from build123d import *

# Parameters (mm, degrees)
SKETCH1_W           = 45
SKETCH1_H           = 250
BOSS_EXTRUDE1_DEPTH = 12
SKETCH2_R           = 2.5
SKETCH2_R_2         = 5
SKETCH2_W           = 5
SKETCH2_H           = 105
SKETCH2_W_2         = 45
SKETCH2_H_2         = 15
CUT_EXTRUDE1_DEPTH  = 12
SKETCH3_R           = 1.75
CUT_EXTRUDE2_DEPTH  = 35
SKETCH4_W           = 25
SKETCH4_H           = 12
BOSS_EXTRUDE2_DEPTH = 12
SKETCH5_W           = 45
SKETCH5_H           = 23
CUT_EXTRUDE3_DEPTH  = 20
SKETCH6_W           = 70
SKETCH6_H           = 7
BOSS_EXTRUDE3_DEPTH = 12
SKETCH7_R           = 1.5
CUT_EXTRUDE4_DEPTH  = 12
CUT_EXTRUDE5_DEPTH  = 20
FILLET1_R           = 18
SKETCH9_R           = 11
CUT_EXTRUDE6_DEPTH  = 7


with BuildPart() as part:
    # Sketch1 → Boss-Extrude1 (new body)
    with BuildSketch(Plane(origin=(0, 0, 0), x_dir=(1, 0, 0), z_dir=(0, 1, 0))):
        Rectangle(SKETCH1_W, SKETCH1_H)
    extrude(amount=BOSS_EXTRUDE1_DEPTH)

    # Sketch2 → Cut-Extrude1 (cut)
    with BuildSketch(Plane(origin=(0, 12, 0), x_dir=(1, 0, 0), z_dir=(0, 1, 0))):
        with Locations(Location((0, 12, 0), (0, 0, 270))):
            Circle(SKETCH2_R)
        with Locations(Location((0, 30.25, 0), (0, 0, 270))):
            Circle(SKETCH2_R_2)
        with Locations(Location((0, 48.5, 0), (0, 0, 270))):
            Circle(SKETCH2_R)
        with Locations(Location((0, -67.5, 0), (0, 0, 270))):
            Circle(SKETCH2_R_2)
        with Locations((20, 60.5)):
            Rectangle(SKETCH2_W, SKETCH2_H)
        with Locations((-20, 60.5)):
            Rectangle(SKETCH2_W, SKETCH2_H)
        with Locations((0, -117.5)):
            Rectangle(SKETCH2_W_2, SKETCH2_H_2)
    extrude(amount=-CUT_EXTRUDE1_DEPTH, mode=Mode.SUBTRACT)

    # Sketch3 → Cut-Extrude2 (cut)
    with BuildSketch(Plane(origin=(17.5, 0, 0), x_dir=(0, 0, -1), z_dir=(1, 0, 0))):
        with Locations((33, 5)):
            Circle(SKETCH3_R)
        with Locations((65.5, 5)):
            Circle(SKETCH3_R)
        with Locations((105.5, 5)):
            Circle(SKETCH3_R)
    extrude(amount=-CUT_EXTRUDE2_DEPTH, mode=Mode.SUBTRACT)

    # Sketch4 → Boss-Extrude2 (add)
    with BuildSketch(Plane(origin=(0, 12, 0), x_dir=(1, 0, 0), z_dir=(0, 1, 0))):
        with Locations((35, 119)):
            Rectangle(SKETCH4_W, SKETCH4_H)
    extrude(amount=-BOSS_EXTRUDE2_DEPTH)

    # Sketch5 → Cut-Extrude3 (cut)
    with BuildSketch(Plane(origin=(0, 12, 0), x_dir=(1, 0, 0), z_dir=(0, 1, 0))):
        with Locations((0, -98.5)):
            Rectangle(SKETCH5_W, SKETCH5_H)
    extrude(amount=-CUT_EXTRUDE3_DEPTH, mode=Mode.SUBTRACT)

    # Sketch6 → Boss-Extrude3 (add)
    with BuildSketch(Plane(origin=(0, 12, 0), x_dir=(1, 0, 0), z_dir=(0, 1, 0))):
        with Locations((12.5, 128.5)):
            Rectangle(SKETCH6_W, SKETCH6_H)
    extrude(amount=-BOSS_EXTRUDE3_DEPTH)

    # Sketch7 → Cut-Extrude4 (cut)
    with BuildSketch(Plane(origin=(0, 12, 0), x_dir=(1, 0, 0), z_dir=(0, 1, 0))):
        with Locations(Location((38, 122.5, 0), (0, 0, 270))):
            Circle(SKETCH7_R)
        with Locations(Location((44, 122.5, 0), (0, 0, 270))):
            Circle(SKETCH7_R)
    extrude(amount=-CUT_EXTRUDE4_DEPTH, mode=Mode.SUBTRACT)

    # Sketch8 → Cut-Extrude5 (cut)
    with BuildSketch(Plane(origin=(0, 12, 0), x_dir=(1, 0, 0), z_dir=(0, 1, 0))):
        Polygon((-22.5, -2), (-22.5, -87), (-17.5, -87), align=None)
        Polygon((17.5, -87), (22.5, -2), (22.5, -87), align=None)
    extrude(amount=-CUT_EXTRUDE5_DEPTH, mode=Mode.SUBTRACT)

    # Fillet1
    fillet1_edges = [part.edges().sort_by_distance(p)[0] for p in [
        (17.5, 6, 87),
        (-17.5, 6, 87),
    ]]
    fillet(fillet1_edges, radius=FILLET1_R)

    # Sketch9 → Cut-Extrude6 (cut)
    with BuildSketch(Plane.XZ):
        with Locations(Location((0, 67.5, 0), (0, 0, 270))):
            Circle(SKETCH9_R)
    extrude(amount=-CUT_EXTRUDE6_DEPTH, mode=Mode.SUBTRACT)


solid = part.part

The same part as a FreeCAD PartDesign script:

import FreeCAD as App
import Part
import Sketcher
from FreeCAD import Vector


def edges_at(feature, points):
    """Names of the edges that pass closest to the given points."""
    edges = feature.Shape.Edges
    near = lambda p: min(range(len(edges)), key=lambda i: edges[i].distToShape(Part.Vertex(*p))[0])
    return sorted({f"Edge{near(p) + 1}" for p in points})

doc = App.newDocument("Part")
body = doc.addObject("PartDesign::Body", "Body")

# Sketch on XZ plane
sketch1 = body.newObject("Sketcher::SketchObject", "Sketch")
sketch1.AttachmentSupport = (doc.getObject("XZ_Plane"), [""])
sketch1.MapMode = "FlatFace"
sketch1.addGeometry([
    Part.LineSegment(Vector(-22, -125, 0), Vector(-22, 125, 0)),
    Part.LineSegment(Vector(-22, 125, 0), Vector(22, 125, 0)),
    Part.LineSegment(Vector(22, 125, 0), Vector(22, -125, 0)),
    Part.LineSegment(Vector(22, -125, 0), Vector(-22, -125, 0)),
], False)
sketch1.addConstraint([
    Sketcher.Constraint("Coincident", 0, 2, 1, 1),
    Sketcher.Constraint("Coincident", 1, 2, 2, 1),
    Sketcher.Constraint("Coincident", 2, 2, 3, 1),
    Sketcher.Constraint("Coincident", 3, 2, 0, 1),
    Sketcher.Constraint("Vertical", 0),
    Sketcher.Constraint("Horizontal", 1),
    Sketcher.Constraint("Vertical", 2),
    Sketcher.Constraint("Horizontal", 3),
    Sketcher.Constraint("Symmetric", 0, 2, 2, 2, -1, 1),
    Sketcher.Constraint("DistanceX", 1, 1, 1, 2, 45.0),
    Sketcher.Constraint("DistanceY", 0, 1, 0, 2, 250.0),
])
pad1 = body.newObject("PartDesign::Pad", "Pad")
pad1.Profile = sketch1
pad1.Length = 12
pad1.Reversed = True

# Sketch on XZ plane
sketch2 = body.newObject("Sketcher::SketchObject", "Sketch001")
sketch2.AttachmentSupport = (doc.getObject("XZ_Plane"), [""])
sketch2.MapMode = "FlatFace"
sketch2.AttachmentOffset = App.Placement(Vector(0, 0, -12), App.Rotation())
sketch2.addGeometry([
    Part.Circle(Vector(0, -12, 0), Vector(0, 0, 1), 2.5),  # 0
    Part.Circle(Vector(0, -30.2, 0), Vector(0, 0, 1), 5),  # 1
    Part.Circle(Vector(0, -48.5, 0), Vector(0, 0, 1), 2.5),  # 2
    Part.Circle(Vector(0, 67.5, 0), Vector(0, 0, 1), 5),  # 3
    Part.LineSegment(Vector(17.5, -113, 0), Vector(17.5, -8, 0)),  # 4
    Part.LineSegment(Vector(17.5, -8, 0), Vector(22.5, -8, 0)),  # 5
    Part.LineSegment(Vector(22.5, -8, 0), Vector(22.5, -113, 0)),  # 6
    Part.LineSegment(Vector(22.5, -113, 0), Vector(17.5, -113, 0)),  # 7
    Part.LineSegment(Vector(-22.5, -113, 0), Vector(-22.5, -8, 0)),  # 8
    Part.LineSegment(Vector(-22.5, -8, 0), Vector(-17.5, -8, 0)),  # 9
    Part.LineSegment(Vector(-17.5, -8, 0), Vector(-17.5, -113, 0)),  # 10
    Part.LineSegment(Vector(-17.5, -113, 0), Vector(-22.5, -113, 0)),  # 11
    Part.LineSegment(Vector(-22.5, 110, 0), Vector(-22.5, 125, 0)),  # 12
    Part.LineSegment(Vector(-22.5, 125, 0), Vector(22.5, 125, 0)),  # 13
    Part.LineSegment(Vector(22.5, 125, 0), Vector(22.5, 110, 0)),  # 14
    Part.LineSegment(Vector(22.5, 110, 0), Vector(-22.5, 110, 0)),  # 15
], False)
sketch2.addConstraint([
    Sketcher.Constraint("Coincident", 4, 2, 5, 1),
    Sketcher.Constraint("Coincident", 5, 2, 6, 1),
    Sketcher.Constraint("Coincident", 6, 2, 7, 1),
    Sketcher.Constraint("Coincident", 7, 2, 4, 1),
    Sketcher.Constraint("Coincident", 8, 2, 9, 1),
    Sketcher.Constraint("Coincident", 9, 2, 10, 1),
    Sketcher.Constraint("Coincident", 10, 2, 11, 1),
    Sketcher.Constraint("Coincident", 11, 2, 8, 1),
    Sketcher.Constraint("Coincident", 12, 2, 13, 1),
    Sketcher.Constraint("Coincident", 13, 2, 14, 1),
    Sketcher.Constraint("Coincident", 14, 2, 15, 1),
    Sketcher.Constraint("Coincident", 15, 2, 12, 1),
    Sketcher.Constraint("Vertical", 4),
    Sketcher.Constraint("Horizontal", 5),
    Sketcher.Constraint("Vertical", 6),
    Sketcher.Constraint("Horizontal", 7),
    Sketcher.Constraint("Vertical", 8),
    Sketcher.Constraint("Horizontal", 9),
    Sketcher.Constraint("Vertical", 10),
    Sketcher.Constraint("Horizontal", 11),
    Sketcher.Constraint("Vertical", 12),
    Sketcher.Constraint("Horizontal", 13),
    Sketcher.Constraint("Vertical", 14),
    Sketcher.Constraint("Horizontal", 15),
    Sketcher.Constraint("Equal", 0, 2),
    Sketcher.Constraint("Equal", 1, 3),
    Sketcher.Constraint("Symmetric", 5, 2, 8, 2, -2),
    Sketcher.Constraint("Symmetric", 7, 2, 10, 2, -2),
    Sketcher.Constraint("PointOnObject", 0, 3, -2),
    Sketcher.Constraint("PointOnObject", 1, 3, -2),
    Sketcher.Constraint("PointOnObject", 2, 3, -2),
    Sketcher.Constraint("PointOnObject", 3, 3, -2),
    Sketcher.Constraint("Vertical", 11, 2, 12, 2),
    Sketcher.Constraint("Vertical", 6, 2, 13, 2),
    Sketcher.Constraint("Diameter", 0, 5.0),
    Sketcher.Constraint("Diameter", 1, 10.0),
    Sketcher.Constraint("DistanceX", 5, 1, 5, 2, 5.0),
    Sketcher.Constraint("DistanceX", 13, 1, 13, 2, 45.0),
    Sketcher.Constraint("DistanceY", 4, 1, 4, 2, 105.0),
    Sketcher.Constraint("DistanceY", 12, 1, 12, 2, 15.0),
    Sketcher.Constraint("DistanceY", 0, 3, -1, 1, 12.0),
    Sketcher.Constraint("DistanceY", 4, 2, -1, 1, 8.0),
    Sketcher.Constraint("DistanceY", -1, 1, 12, 2, 125.0),
    Sketcher.Constraint("DistanceY", 2, 3, 3, 3, 116.0),
    Sketcher.Constraint("DistanceY", 2, 3, -1, 1, 48.5),
    Sketcher.Constraint("DistanceY", 1, 3, -1, 1, 30.25),
])
pocket1 = body.newObject("PartDesign::Pocket", "Pocket")
pocket1.Profile = sketch2
pocket1.Length = 12
pocket1.Reversed = True

# Sketch on YZ plane
sketch3 = body.newObject("Sketcher::SketchObject", "Sketch002")
sketch3.AttachmentSupport = (doc.getObject("YZ_Plane"), [""])
sketch3.MapMode = "FlatFace"
sketch3.AttachmentOffset = App.Placement(Vector(0, 0, 17.5), App.Rotation())
sketch3.addGeometry([
    Part.Circle(Vector(5, -33, 0), Vector(0, 0, 1), 1.8),
    Part.Circle(Vector(5, -65.5, 0), Vector(0, 0, 1), 1.8),
    Part.Circle(Vector(5, -105.5, 0), Vector(0, 0, 1), 1.8),
], False)
sketch3.addConstraint([
    Sketcher.Constraint("Equal", 0, 1),
    Sketcher.Constraint("Equal", 1, 2),
    Sketcher.Constraint("Vertical", 0, 3, 1, 3),
    Sketcher.Constraint("Vertical", 1, 3, 2, 3),
    Sketcher.Constraint("Diameter", 0, 3.5),
    Sketcher.Constraint("DistanceX", -1, 1, 0, 3, 5.0),
    Sketcher.Constraint("DistanceY", 0, 3, -1, 1, 33.0),
    Sketcher.Constraint("DistanceY", 2, 3, 1, 3, 40.0),
    Sketcher.Constraint("DistanceY", 1, 3, -1, 1, 65.5),
])
pocket2 = body.newObject("PartDesign::Pocket", "Pocket001")
pocket2.Profile = sketch3
pocket2.Length = 35

# Sketch on XZ plane
sketch4 = body.newObject("Sketcher::SketchObject", "Sketch003")
sketch4.AttachmentSupport = (doc.getObject("XZ_Plane"), [""])
sketch4.MapMode = "FlatFace"
sketch4.AttachmentOffset = App.Placement(Vector(0, 0, -12), App.Rotation())
sketch4.addGeometry([
    Part.LineSegment(Vector(22, -125, 0), Vector(22, -113, 0)),
    Part.LineSegment(Vector(22, -113, 0), Vector(48, -113, 0)),
    Part.LineSegment(Vector(48, -113, 0), Vector(48, -125, 0)),
    Part.LineSegment(Vector(48, -125, 0), Vector(22, -125, 0)),
], False)
sketch4.addConstraint([
    Sketcher.Constraint("Coincident", 0, 2, 1, 1),
    Sketcher.Constraint("Coincident", 1, 2, 2, 1),
    Sketcher.Constraint("Coincident", 2, 2, 3, 1),
    Sketcher.Constraint("Coincident", 3, 2, 0, 1),
    Sketcher.Constraint("Vertical", 0),
    Sketcher.Constraint("Horizontal", 1),
    Sketcher.Constraint("Vertical", 2),
    Sketcher.Constraint("Horizontal", 3),
    Sketcher.Constraint("DistanceX", 1, 1, 1, 2, 25.0),
    Sketcher.Constraint("DistanceY", 0, 1, 0, 2, 12.0),
    Sketcher.Constraint("DistanceY", 0, 2, -1, 1, 113.0),
    Sketcher.Constraint("DistanceX", -1, 1, 0, 2, 22.5),
])
pad2 = body.newObject("PartDesign::Pad", "Pad001")
pad2.Profile = sketch4
pad2.Length = 12

# Sketch on XZ plane
sketch5 = body.newObject("Sketcher::SketchObject", "Sketch004")
sketch5.AttachmentSupport = (doc.getObject("XZ_Plane"), [""])
sketch5.MapMode = "FlatFace"
sketch5.AttachmentOffset = App.Placement(Vector(0, 0, -12), App.Rotation())
sketch5.addGeometry([
    Part.LineSegment(Vector(-22, 87, 0), Vector(-22, 110, 0)),
    Part.LineSegment(Vector(-22, 110, 0), Vector(22, 110, 0)),
    Part.LineSegment(Vector(22, 110, 0), Vector(22, 87, 0)),
    Part.LineSegment(Vector(22, 87, 0), Vector(-22, 87, 0)),
], False)
sketch5.addConstraint([
    Sketcher.Constraint("Coincident", 0, 2, 1, 1),
    Sketcher.Constraint("Coincident", 1, 2, 2, 1),
    Sketcher.Constraint("Coincident", 2, 2, 3, 1),
    Sketcher.Constraint("Coincident", 3, 2, 0, 1),
    Sketcher.Constraint("Vertical", 0),
    Sketcher.Constraint("Horizontal", 1),
    Sketcher.Constraint("Vertical", 2),
    Sketcher.Constraint("Horizontal", 3),
    Sketcher.Constraint("DistanceX", 1, 1, 1, 2, 45.0),
    Sketcher.Constraint("DistanceY", 0, 1, 0, 2, 23.0),
    Sketcher.Constraint("DistanceY", -1, 1, 0, 2, 110.0),
    Sketcher.Constraint("DistanceX", 0, 2, -1, 1, 22.5),
])
pocket3 = body.newObject("PartDesign::Pocket", "Pocket002")
pocket3.Profile = sketch5
pocket3.Length = 20
pocket3.Reversed = True

# Sketch on XZ plane
sketch6 = body.newObject("Sketcher::SketchObject", "Sketch005")
sketch6.AttachmentSupport = (doc.getObject("XZ_Plane"), [""])
sketch6.MapMode = "FlatFace"
sketch6.AttachmentOffset = App.Placement(Vector(0, 0, -12), App.Rotation())
sketch6.addGeometry([
    Part.LineSegment(Vector(-22, -132, 0), Vector(-22, -125, 0)),
    Part.LineSegment(Vector(-22, -125, 0), Vector(48, -125, 0)),
    Part.LineSegment(Vector(48, -125, 0), Vector(48, -132, 0)),
    Part.LineSegment(Vector(48, -132, 0), Vector(-22, -132, 0)),
], False)
sketch6.addConstraint([
    Sketcher.Constraint("Coincident", 0, 2, 1, 1),
    Sketcher.Constraint("Coincident", 1, 2, 2, 1),
    Sketcher.Constraint("Coincident", 2, 2, 3, 1),
    Sketcher.Constraint("Coincident", 3, 2, 0, 1),
    Sketcher.Constraint("Vertical", 0),
    Sketcher.Constraint("Horizontal", 1),
    Sketcher.Constraint("Vertical", 2),
    Sketcher.Constraint("Horizontal", 3),
    Sketcher.Constraint("DistanceX", 1, 1, 1, 2, 70.0),
    Sketcher.Constraint("DistanceY", 0, 1, 0, 2, 7.0),
    Sketcher.Constraint("DistanceY", 0, 2, -1, 1, 125.0),
    Sketcher.Constraint("DistanceX", 0, 2, -1, 1, 22.5),
])
pad3 = body.newObject("PartDesign::Pad", "Pad002")
pad3.Profile = sketch6
pad3.Length = 12

# Sketch on XZ plane
sketch7 = body.newObject("Sketcher::SketchObject", "Sketch006")
sketch7.AttachmentSupport = (doc.getObject("XZ_Plane"), [""])
sketch7.MapMode = "FlatFace"
sketch7.AttachmentOffset = App.Placement(Vector(0, 0, -12), App.Rotation())
sketch7.addGeometry([
    Part.Circle(Vector(38, -122.5, 0), Vector(0, 0, 1), 1.5),
    Part.Circle(Vector(44, -122.5, 0), Vector(0, 0, 1), 1.5),
], False)
sketch7.addConstraint([
    Sketcher.Constraint("Equal", 0, 1),
    Sketcher.Constraint("Horizontal", 0, 3, 1, 3),
    Sketcher.Constraint("Diameter", 0, 3.0),
    Sketcher.Constraint("DistanceX", -1, 1, 0, 3, 38.0),
    Sketcher.Constraint("DistanceX", -1, 1, 1, 3, 44.0),
    Sketcher.Constraint("DistanceY", 0, 3, -1, 1, 122.5),
])
pocket4 = body.newObject("PartDesign::Pocket", "Pocket003")
pocket4.Profile = sketch7
pocket4.Length = 12
pocket4.Reversed = True

# Sketch on XZ plane
sketch8 = body.newObject("Sketcher::SketchObject", "Sketch007")
sketch8.AttachmentSupport = (doc.getObject("XZ_Plane"), [""])
sketch8.MapMode = "FlatFace"
sketch8.AttachmentOffset = App.Placement(Vector(0, 0, -12), App.Rotation())
sketch8.addGeometry([
    Part.LineSegment(Vector(-22, 2, 0), Vector(-22, 87, 0)),  # 0
    Part.LineSegment(Vector(-22, 87, 0), Vector(-18, 87, 0)),  # 1
    Part.LineSegment(Vector(-18, 87, 0), Vector(-22, 2, 0)),  # 2
    Part.LineSegment(Vector(22, 2, 0), Vector(18, 87, 0)),  # 3
    Part.LineSegment(Vector(18, 87, 0), Vector(22, 87, 0)),  # 4
    Part.LineSegment(Vector(22, 87, 0), Vector(22, 2, 0)),  # 5
], False)
sketch8.addConstraint([
    Sketcher.Constraint("Coincident", 0, 2, 1, 1),
    Sketcher.Constraint("Coincident", 1, 2, 2, 1),
    Sketcher.Constraint("Coincident", 2, 2, 0, 1),
    Sketcher.Constraint("Coincident", 3, 2, 4, 1),
    Sketcher.Constraint("Coincident", 4, 2, 5, 1),
    Sketcher.Constraint("Coincident", 5, 2, 3, 1),
    Sketcher.Constraint("Vertical", 0),
    Sketcher.Constraint("Horizontal", 1),
    Sketcher.Constraint("Horizontal", 4),
    Sketcher.Constraint("Vertical", 5),
    Sketcher.Constraint("Symmetric", 1, 2, 3, 2, -2),
    Sketcher.Constraint("Symmetric", 2, 2, 5, 2, -2),
    Sketcher.Constraint("DistanceX", 1, 1, 1, 2, 5.0),
    Sketcher.Constraint("DistanceY", 0, 1, 0, 2, 85.0),
    Sketcher.Constraint("DistanceY", -1, 1, 0, 2, 87.0),
    Sketcher.Constraint("DistanceX", 1, 2, 3, 2, 35.0),
])
pocket5 = body.newObject("PartDesign::Pocket", "Pocket004")
pocket5.Profile = sketch8
pocket5.Length = 20
pocket5.Reversed = True
doc.recompute()

fillet = body.newObject("PartDesign::Fillet", "Fillet")
fillet.Base = (pocket5, edges_at(pocket5, [(17.5, 6, 87), (-17.5, 6, 87)]))
fillet.Radius = 18

# Sketch on XZ plane
sketch9 = body.newObject("Sketcher::SketchObject", "Sketch008")
sketch9.AttachmentSupport = (doc.getObject("XZ_Plane"), [""])
sketch9.MapMode = "FlatFace"
sketch9.addGeometry(Part.Circle(Vector(0, 68, 0), Vector(0, 0, 1), 11), False)
sketch9.addConstraint([
    Sketcher.Constraint("PointOnObject", 0, 3, -2),
    Sketcher.Constraint("Diameter", 0, 22.0),
    Sketcher.Constraint("DistanceY", -1, 1, 0, 3, 67.5),
])
pocket6 = body.newObject("PartDesign::Pocket", "Pocket005")
pocket6.Profile = sketch9
pocket6.Length = 7

doc.recompute()
